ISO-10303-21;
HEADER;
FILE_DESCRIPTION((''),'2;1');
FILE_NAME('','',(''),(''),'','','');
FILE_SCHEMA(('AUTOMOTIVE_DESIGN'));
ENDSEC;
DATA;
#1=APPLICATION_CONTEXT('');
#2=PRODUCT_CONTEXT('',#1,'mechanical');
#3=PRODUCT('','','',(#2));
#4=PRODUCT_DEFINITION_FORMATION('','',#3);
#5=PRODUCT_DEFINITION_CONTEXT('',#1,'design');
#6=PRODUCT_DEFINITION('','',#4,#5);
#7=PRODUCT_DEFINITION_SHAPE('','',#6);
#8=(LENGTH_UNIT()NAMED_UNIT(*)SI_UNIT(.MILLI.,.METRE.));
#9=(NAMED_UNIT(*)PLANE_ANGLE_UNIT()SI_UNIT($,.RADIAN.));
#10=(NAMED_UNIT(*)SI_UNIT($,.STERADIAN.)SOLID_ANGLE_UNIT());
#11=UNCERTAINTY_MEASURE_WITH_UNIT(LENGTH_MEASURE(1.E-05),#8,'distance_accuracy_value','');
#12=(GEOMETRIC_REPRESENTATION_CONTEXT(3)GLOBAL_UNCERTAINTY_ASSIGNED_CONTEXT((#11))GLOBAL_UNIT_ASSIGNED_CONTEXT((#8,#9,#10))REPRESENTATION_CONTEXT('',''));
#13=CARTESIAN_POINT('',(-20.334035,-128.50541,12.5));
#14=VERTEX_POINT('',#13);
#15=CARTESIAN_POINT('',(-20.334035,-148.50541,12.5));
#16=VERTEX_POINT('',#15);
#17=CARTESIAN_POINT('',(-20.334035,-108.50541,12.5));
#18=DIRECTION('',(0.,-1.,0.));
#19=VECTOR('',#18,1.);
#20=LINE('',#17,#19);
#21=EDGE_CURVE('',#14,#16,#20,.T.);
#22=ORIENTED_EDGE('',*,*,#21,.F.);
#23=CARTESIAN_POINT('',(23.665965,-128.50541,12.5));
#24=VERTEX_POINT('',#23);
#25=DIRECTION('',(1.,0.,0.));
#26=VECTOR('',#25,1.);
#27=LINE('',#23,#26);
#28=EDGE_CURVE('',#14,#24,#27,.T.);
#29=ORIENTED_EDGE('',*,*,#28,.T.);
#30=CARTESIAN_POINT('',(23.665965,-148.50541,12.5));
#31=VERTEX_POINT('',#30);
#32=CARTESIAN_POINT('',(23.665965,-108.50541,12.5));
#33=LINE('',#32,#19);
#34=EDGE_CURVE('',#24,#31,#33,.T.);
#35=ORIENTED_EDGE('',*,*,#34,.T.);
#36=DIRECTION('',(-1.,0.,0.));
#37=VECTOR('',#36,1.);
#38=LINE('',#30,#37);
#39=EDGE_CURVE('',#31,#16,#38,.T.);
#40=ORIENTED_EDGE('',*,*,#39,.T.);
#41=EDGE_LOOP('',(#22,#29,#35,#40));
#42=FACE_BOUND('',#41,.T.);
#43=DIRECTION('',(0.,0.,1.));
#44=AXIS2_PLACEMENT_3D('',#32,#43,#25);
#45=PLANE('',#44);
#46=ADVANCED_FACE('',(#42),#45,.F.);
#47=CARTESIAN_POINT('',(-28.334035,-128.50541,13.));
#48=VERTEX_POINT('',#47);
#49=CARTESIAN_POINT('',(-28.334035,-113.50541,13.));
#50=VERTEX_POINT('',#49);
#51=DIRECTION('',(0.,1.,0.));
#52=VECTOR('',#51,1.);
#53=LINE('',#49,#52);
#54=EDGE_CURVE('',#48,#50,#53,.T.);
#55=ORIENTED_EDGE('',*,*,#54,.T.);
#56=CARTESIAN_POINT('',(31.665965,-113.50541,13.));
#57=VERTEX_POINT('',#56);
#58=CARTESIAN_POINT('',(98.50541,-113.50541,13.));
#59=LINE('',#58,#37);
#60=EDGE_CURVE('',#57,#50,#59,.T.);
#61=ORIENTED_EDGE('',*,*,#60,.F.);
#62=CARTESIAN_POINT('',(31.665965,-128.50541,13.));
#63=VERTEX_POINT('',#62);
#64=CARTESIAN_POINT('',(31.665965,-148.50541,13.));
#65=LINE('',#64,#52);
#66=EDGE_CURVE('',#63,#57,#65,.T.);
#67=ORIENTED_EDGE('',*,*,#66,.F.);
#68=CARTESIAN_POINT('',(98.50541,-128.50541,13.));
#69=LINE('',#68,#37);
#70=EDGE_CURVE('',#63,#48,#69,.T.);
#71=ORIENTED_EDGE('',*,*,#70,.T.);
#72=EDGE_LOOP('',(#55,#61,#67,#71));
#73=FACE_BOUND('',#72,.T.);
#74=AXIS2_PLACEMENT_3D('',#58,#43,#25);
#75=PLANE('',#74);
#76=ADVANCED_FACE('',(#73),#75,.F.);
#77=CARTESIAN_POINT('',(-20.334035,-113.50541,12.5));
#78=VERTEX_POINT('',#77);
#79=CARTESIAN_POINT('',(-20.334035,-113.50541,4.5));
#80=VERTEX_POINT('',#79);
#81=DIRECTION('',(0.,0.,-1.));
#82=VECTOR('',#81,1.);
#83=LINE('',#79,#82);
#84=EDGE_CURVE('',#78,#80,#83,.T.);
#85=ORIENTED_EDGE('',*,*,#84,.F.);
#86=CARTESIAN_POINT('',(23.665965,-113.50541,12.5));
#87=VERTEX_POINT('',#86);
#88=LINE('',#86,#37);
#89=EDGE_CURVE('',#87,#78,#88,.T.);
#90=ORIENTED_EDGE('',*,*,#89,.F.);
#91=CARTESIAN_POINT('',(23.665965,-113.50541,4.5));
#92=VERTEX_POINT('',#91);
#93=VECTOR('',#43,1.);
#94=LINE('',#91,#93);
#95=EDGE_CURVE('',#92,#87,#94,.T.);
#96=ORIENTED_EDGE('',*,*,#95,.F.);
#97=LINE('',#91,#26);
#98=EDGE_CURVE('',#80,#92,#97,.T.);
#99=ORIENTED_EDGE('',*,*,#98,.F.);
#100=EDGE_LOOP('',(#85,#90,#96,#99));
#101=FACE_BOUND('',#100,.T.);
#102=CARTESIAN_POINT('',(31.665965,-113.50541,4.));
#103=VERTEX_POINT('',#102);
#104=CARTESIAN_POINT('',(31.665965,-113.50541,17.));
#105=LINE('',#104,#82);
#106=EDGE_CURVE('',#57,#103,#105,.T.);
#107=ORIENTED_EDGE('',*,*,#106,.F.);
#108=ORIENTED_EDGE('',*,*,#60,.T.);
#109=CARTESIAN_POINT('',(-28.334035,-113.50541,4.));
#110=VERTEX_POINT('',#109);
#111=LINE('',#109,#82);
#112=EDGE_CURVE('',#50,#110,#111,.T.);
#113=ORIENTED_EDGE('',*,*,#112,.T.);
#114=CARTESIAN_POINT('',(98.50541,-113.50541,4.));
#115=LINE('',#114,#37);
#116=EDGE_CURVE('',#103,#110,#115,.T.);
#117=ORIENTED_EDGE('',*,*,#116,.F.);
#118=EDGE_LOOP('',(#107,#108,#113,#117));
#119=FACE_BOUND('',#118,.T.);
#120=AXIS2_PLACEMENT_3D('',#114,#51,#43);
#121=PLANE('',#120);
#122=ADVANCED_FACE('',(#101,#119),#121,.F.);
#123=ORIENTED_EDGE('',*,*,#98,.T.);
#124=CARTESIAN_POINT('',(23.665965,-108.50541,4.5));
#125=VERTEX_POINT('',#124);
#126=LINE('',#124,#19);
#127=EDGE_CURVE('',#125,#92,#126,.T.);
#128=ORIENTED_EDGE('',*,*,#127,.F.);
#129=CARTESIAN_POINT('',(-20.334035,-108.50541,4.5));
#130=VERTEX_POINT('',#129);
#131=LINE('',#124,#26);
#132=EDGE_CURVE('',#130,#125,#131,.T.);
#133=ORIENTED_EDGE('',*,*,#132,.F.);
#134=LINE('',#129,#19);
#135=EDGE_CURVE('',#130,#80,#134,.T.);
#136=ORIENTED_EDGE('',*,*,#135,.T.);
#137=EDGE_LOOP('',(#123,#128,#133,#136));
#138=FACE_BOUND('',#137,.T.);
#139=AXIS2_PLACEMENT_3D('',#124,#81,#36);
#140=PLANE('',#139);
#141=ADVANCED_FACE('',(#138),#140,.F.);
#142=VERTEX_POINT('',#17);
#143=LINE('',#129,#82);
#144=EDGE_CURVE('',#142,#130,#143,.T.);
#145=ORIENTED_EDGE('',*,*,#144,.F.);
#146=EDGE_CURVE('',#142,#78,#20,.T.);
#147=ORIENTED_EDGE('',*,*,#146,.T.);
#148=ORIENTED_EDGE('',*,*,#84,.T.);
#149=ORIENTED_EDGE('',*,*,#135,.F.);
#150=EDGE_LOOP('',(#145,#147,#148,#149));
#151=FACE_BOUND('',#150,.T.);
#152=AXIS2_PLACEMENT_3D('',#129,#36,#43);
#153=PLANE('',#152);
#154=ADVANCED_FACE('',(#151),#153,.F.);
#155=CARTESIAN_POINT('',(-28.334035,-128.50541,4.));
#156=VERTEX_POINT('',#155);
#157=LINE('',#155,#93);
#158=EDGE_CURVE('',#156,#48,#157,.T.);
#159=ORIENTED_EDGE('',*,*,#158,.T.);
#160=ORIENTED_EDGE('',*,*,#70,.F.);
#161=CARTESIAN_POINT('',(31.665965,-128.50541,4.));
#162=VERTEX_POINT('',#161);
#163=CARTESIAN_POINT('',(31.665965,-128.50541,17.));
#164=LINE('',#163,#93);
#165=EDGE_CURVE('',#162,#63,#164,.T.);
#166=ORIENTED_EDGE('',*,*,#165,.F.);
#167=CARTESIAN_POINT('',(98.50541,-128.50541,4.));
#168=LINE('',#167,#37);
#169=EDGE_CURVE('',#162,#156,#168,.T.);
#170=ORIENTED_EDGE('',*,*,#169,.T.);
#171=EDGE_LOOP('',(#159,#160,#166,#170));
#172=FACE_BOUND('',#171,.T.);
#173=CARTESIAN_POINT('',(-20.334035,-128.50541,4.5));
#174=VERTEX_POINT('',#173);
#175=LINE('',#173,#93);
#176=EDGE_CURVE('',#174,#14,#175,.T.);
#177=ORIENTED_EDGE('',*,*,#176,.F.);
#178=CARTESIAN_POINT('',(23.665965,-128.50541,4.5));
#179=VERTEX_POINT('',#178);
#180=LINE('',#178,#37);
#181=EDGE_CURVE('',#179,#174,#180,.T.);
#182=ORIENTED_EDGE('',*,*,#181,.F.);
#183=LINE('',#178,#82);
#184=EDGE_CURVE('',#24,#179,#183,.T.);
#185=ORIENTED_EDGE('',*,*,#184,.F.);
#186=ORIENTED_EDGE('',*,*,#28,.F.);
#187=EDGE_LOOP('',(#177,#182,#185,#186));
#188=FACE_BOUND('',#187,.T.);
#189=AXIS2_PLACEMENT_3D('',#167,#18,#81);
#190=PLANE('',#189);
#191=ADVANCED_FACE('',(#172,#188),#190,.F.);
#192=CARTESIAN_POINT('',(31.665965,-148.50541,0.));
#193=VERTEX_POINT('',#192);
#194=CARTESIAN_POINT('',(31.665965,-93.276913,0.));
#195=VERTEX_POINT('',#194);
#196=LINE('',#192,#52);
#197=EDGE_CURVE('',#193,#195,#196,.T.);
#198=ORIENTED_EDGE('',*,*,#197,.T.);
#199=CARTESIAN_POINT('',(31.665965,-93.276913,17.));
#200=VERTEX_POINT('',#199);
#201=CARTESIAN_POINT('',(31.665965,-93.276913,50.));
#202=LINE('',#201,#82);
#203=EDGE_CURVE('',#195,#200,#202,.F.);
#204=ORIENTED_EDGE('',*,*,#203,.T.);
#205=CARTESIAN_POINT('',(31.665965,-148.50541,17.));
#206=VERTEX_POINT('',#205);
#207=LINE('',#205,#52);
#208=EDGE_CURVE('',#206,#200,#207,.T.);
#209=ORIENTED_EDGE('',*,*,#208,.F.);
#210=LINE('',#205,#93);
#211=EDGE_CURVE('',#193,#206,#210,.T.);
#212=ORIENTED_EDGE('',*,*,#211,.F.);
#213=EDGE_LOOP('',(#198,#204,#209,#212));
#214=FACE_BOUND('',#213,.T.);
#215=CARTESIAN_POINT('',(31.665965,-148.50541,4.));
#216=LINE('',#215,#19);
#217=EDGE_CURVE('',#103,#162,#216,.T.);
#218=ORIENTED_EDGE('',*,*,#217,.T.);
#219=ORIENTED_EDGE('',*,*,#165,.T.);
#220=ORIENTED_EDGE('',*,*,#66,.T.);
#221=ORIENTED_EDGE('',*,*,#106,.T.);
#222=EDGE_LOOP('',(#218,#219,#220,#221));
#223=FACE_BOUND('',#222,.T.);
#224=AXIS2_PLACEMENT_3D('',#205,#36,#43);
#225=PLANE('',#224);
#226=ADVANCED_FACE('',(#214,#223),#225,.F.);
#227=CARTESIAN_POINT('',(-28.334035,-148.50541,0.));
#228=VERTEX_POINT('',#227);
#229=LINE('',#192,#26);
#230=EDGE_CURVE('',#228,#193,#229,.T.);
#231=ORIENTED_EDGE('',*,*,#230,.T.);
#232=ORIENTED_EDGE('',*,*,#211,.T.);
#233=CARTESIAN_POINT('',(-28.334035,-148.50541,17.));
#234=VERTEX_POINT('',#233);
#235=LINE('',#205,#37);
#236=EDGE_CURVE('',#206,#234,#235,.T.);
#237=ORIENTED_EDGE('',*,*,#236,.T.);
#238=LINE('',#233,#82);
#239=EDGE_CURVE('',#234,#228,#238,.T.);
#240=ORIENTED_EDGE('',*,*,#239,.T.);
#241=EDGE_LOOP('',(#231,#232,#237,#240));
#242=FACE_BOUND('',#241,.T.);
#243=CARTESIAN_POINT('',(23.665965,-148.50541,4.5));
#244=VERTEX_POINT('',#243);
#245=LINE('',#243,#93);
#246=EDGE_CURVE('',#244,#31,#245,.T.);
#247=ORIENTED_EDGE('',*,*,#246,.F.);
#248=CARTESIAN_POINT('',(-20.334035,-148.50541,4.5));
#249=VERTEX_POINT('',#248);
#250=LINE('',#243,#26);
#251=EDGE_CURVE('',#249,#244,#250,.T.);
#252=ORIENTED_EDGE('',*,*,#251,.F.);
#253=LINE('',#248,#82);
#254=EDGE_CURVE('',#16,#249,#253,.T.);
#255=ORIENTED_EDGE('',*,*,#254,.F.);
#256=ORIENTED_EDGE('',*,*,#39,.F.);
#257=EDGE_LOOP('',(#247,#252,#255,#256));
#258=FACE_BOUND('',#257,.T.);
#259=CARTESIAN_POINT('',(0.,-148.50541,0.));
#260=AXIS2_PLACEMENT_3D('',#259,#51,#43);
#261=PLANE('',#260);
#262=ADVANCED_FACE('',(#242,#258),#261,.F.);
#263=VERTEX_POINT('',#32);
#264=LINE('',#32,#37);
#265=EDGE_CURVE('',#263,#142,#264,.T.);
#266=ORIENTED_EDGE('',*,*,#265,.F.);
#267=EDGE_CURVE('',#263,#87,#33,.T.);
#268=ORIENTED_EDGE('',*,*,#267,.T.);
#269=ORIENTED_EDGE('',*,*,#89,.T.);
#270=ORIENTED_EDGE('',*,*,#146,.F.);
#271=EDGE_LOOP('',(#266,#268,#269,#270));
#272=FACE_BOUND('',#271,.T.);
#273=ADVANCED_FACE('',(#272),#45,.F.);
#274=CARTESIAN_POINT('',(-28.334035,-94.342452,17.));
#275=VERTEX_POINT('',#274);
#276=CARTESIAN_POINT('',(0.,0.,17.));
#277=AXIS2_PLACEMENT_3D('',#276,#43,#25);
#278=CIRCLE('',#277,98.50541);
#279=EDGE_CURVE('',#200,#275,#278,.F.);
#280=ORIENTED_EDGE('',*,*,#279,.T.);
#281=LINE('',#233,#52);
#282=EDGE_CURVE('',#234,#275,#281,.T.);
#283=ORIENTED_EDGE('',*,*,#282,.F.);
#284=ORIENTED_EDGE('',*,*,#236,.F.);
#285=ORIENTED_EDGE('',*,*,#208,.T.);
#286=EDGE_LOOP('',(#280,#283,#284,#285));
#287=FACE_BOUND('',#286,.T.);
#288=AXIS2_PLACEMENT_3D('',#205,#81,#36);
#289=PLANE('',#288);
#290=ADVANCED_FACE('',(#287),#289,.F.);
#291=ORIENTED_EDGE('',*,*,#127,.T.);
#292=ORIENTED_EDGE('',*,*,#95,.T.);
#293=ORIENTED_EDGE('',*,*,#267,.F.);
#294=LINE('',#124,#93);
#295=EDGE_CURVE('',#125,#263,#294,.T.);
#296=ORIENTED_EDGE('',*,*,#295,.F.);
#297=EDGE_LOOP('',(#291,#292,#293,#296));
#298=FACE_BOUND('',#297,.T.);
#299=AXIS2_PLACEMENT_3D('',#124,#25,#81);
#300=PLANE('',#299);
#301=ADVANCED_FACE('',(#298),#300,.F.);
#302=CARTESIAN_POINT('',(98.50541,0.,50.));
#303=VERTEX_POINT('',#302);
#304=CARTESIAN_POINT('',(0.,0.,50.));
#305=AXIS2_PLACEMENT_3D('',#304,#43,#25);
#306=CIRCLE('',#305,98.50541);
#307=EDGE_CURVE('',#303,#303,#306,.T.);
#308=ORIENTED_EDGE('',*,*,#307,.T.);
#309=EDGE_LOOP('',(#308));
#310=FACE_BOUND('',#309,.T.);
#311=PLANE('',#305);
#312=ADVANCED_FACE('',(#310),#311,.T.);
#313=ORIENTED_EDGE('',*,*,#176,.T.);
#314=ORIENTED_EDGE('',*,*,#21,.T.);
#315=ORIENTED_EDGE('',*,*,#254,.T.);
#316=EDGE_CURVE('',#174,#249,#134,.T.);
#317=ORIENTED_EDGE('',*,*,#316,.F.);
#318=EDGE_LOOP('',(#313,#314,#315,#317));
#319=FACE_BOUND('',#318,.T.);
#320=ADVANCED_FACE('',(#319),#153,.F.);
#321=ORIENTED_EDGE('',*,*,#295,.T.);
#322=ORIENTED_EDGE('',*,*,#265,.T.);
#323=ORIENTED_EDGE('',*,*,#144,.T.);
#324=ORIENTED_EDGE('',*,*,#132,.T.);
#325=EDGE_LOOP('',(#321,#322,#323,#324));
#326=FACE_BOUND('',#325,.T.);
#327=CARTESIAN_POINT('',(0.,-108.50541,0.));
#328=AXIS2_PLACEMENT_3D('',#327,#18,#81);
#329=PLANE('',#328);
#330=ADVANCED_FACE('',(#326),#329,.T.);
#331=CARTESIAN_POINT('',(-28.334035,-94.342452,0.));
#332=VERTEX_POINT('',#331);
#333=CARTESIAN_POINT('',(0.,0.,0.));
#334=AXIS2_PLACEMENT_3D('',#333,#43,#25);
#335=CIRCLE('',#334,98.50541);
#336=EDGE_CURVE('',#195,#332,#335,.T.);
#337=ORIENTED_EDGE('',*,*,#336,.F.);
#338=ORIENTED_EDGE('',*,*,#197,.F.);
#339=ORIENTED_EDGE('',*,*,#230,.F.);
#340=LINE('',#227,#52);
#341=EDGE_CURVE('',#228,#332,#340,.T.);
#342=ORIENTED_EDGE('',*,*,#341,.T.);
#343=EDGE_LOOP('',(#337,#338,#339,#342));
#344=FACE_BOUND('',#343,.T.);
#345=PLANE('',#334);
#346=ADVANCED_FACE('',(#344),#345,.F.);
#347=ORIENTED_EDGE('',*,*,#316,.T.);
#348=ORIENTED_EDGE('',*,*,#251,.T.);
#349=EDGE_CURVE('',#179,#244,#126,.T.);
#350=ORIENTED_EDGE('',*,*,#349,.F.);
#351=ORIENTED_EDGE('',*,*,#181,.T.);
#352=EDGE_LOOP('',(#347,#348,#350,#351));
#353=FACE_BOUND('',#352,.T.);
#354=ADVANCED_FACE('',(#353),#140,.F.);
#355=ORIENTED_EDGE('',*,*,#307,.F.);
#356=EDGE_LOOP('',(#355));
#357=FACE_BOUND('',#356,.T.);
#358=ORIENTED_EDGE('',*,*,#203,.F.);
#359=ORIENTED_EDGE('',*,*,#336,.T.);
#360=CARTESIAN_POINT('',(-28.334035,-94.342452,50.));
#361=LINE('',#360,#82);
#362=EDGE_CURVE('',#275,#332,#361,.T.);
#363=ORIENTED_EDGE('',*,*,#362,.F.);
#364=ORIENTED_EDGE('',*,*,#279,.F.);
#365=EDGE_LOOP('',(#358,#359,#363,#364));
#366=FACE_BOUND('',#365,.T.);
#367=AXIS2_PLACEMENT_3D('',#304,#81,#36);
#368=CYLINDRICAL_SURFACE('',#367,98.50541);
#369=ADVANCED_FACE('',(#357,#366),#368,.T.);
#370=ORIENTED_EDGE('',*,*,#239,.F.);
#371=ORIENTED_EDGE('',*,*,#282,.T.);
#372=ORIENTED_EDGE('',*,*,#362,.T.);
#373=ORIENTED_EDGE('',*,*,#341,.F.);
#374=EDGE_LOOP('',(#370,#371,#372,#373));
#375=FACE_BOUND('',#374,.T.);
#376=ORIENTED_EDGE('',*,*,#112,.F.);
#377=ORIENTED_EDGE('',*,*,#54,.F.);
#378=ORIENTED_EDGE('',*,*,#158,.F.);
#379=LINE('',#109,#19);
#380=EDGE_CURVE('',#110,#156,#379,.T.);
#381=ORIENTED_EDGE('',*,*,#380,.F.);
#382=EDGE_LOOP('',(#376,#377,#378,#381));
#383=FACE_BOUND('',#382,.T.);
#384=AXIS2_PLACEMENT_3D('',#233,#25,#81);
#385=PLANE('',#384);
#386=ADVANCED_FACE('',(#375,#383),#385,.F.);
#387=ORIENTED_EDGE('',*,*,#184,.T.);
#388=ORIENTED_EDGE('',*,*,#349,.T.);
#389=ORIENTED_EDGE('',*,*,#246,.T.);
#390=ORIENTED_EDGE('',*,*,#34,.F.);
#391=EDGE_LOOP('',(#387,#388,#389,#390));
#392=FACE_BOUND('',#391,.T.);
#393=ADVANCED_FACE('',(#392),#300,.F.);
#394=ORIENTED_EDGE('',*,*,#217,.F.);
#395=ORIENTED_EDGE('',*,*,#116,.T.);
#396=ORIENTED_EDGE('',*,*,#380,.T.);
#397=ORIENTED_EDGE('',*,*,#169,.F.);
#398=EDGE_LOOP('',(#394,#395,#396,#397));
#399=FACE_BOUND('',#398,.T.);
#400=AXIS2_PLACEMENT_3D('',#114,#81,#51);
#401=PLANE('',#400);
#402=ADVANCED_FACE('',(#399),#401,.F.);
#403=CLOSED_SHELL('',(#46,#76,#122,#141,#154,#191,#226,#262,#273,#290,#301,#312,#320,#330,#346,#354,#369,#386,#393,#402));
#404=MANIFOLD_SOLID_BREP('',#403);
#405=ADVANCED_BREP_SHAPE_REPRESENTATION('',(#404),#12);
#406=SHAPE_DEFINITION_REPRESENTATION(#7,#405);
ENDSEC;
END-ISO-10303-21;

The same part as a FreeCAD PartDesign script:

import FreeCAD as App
import Part
import Sketcher
from FreeCAD import Vector
Q = App.Units.Quantity

doc = App.newDocument("Part")
body = doc.addObject("PartDesign::Body", "Body")

# Sketch on XY plane
sketch1 = doc.addObject("Sketcher::SketchObject", "Sketch")
body.addObject(sketch1)
sketch1.AttachmentSupport = (doc.XY_Plane, [""])
sketch1.MapMode = "FlatFace"
sketch1.addGeometry(Part.Circle(Vector(0, 0, 0), Vector(0, 0, 1), 99), False)
sketch1.addConstraint(Sketcher.Constraint("Coincident", 0, 3, -1, 1))
sketch1.addConstraint(Sketcher.Constraint("Diameter", 0, Q("197.01082 mm")))
pad1 = doc.addObject("PartDesign::Pad", "Pad")
body.addObject(pad1)
pad1.Profile = sketch1
pad1.Length = 50

# Sketch on XZ plane
sketch2 = doc.addObject("Sketcher::SketchObject", "Sketch001")
body.addObject(sketch2)
sketch2.AttachmentSupport = (doc.XZ_Plane, [""])
sketch2.MapMode = "FlatFace"
sketch2.AttachmentOffset = App.Placement(Vector(0, 0, 93.276913), App.Rotation())
sketch2.addGeometry(Part.LineSegment(Vector(32, 0, 0), Vector(32, 17, 0)), False)
sketch2.addGeometry(Part.LineSegment(Vector(32, 17, 0), Vector(-28, 17, 0)), False)
sketch2.addGeometry(Part.LineSegment(Vector(-28, 17, 0), Vector(-28, 0, 0)), False)
sketch2.addGeometry(Part.LineSegment(Vector(-28, 0, 0), Vector(32, 0, 0)), False)
sketch2.addConstraint(Sketcher.Constraint("Coincident", 0, 2, 1, 1))
sketch2.addConstraint(Sketcher.Constraint("Coincident", 1, 2, 2, 1))
sketch2.addConstraint(Sketcher.Constraint("Coincident", 2, 2, 3, 1))
sketch2.addConstraint(Sketcher.Constraint("Coincident", 3, 2, 0, 1))
sketch2.addConstraint(Sketcher.Constraint("Vertical", 0))
sketch2.addConstraint(Sketcher.Constraint("Horizontal", 1))
sketch2.addConstraint(Sketcher.Constraint("Vertical", 2))
sketch2.addConstraint(Sketcher.Constraint("Horizontal", 3))
sketch2.addConstraint(Sketcher.Constraint("PointOnObject", 2, 2, -1))
sketch2.addConstraint(Sketcher.Constraint("DistanceX", 1, 2, 1, 1, Q("60 mm")))
sketch2.addConstraint(Sketcher.Constraint("DistanceY", 0, 1, 0, 2, Q("17 mm")))
sketch2.addConstraint(Sketcher.Constraint("DistanceX", -1, 1, 0, 2, Q("31.665965 mm")))
pad2 = doc.addObject("PartDesign::Pad", "Pad001")
body.addObject(pad2)
pad2.Profile = sketch2
pad2.Length = 55.228497

# Sketch on XZ plane
sketch3 = doc.addObject("Sketcher::SketchObject", "Sketch002")
body.addObject(sketch3)
sketch3.AttachmentSupport = (doc.XZ_Plane, [""])
sketch3.MapMode = "FlatFace"
sketch3.AttachmentOffset = App.Placement(Vector(0, 0, 148.50541), App.Rotation())
sketch3.addGeometry(Part.LineSegment(Vector(-20, 12, 0), Vector(-20, 4, 0)), False)
sketch3.addGeometry(Part.LineSegment(Vector(-20, 4, 0), Vector(24, 4, 0)), False)
sketch3.addGeometry(Part.LineSegment(Vector(24, 4, 0), Vector(24, 12, 0)), False)
sketch3.addGeometry(Part.LineSegment(Vector(24, 12, 0), Vector(-20, 12, 0)), False)
sketch3.addConstraint(Sketcher.Constraint("Coincident", 0, 2, 1, 1))
sketch3.addConstraint(Sketcher.Constraint("Coincident", 1, 2, 2, 1))
sketch3.addConstraint(Sketcher.Constraint("Coincident", 2, 2, 3, 1))
sketch3.addConstraint(Sketcher.Constraint("Coincident", 3, 2, 0, 1))
sketch3.addConstraint(Sketcher.Constraint("Vertical", 0))
sketch3.addConstraint(Sketcher.Constraint("Horizontal", 1))
sketch3.addConstraint(Sketcher.Constraint("Vertical", 2))
sketch3.addConstraint(Sketcher.Constraint("Horizontal", 3))
sketch3.addConstraint(Sketcher.Constraint("DistanceX", 1, 1, 1, 2, Q("44 mm")))
sketch3.addConstraint(Sketcher.Constraint("DistanceY", 0, 2, 0, 1, Q("8 mm")))
sketch3.addConstraint(Sketcher.Constraint("DistanceY", -1, 1, 0, 2, Q("4.5 mm")))
sketch3.addConstraint(Sketcher.Constraint("DistanceX", 0, 2, -1, 1, Q("20.334035 mm")))
pocket1 = doc.addObject("PartDesign::Pocket", "Pocket")
body.addObject(pocket1)
pocket1.Profile = sketch3
pocket1.Length = 40

# Sketch on YZ plane
sketch4 = doc.addObject("Sketcher::SketchObject", "Sketch003")
body.addObject(sketch4)
sketch4.AttachmentSupport = (doc.YZ_Plane, [""])
sketch4.MapMode = "FlatFace"
sketch4.AttachmentOffset = App.Placement(Vector(0, 0, -28.334035), App.Rotation())
sketch4.addGeometry(Part.LineSegment(Vector(-114, 4, 0), Vector(-129, 4, 0)), False)
sketch4.addGeometry(Part.LineSegment(Vector(-129, 4, 0), Vector(-129, 13, 0)), False)
sketch4.addGeometry(Part.LineSegment(Vector(-129, 13, 0), Vector(-114, 13, 0)), False)
sketch4.addGeometry(Part.LineSegment(Vector(-114, 13, 0), Vector(-114, 4, 0)), False)
sketch4.addConstraint(Sketcher.Constraint("Coincident", 0, 2, 1, 1))
sketch4.addConstraint(Sketcher.Constraint("Coincident", 1, 2, 2, 1))
sketch4.addConstraint(Sketcher.Constraint("Coincident", 2, 2, 3, 1))
sketch4.addConstraint(Sketcher.Constraint("Coincident", 3, 2, 0, 1))
sketch4.addConstraint(Sketcher.Constraint("Horizontal", 0))
sketch4.addConstraint(Sketcher.Constraint("Vertical", 1))
sketch4.addConstraint(Sketcher.Constraint("Horizontal", 2))
sketch4.addConstraint(Sketcher.Constraint("Vertical", 3))
sketch4.addConstraint(Sketcher.Constraint("DistanceX", 0, 2, 0, 1, Q("15 mm")))
sketch4.addConstraint(Sketcher.Constraint("DistanceY", 1, 1, 1, 2, Q("9 mm")))
sketch4.addConstraint(Sketcher.Constraint("DistanceY", -1, 1, 0, 2, Q("4 mm")))
sketch4.addConstraint(Sketcher.Constraint("DistanceX", 0, 2, -1, 1, Q("128.50541 mm")))
pocket2 = doc.addObject("PartDesign::Pocket", "Pocket001")
body.addObject(pocket2)
pocket2.Profile = sketch4
pocket2.Type = "ThroughAll"
pocket2.Reversed = True

doc.recompute()
